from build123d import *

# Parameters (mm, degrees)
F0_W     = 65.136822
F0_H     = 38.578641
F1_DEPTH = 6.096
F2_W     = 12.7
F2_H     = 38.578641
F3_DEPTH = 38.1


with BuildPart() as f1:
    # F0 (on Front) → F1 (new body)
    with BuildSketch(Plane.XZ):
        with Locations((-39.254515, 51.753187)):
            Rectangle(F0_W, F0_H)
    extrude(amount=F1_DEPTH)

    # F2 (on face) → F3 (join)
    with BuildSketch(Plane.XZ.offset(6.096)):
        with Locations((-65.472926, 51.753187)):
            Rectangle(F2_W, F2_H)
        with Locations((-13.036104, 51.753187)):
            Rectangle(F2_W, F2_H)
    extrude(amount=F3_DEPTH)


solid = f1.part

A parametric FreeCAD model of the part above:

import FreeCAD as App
import Part
import Sketcher
Q = App.Units.Quantity


def add_polygon(sketch, points):
    """Adds a closed chain of lines whose ends are joined by coincident constraints."""
    first, n = sketch.GeometryCount, len(points)
    for a, b in zip(points, points[1:] + points[:1]):
        sketch.addGeometry(Part.LineSegment(App.Vector(*a, 0), App.Vector(*b, 0)), False)
    for i in range(n):
        sketch.addConstraint(Sketcher.Constraint("Coincident", first + i, 2, first + (i + 1) % n, 1))

doc = App.newDocument("Part")
body = doc.addObject("PartDesign::Body", "Body")

sketch1 = body.newObject("Sketcher::SketchObject", "Sketch")
sketch1.AttachmentSupport = (doc.getObject("XZ_Plane"), [""])
sketch1.MapMode = "FlatFace"
add_polygon(sketch1, [(-72, 71), (-72, 32), (-7, 32), (-7, 71)])
sketch1.addConstraint([
    Sketcher.Constraint("Vertical", 0),
    Sketcher.Constraint("Horizontal", 1),
    Sketcher.Constraint("Vertical", 2),
    Sketcher.Constraint("Horizontal", 3),
    Sketcher.Constraint("DistanceX", 1, 1, 1, 2, Q("65.136822 mm")),
    Sketcher.Constraint("DistanceY", 0, 2, 0, 1, Q("38.578641 mm")),
    Sketcher.Constraint("DistanceX", 0, 2, -1, 1, Q("71.822926 mm")),
    Sketcher.Constraint("DistanceY", -1, 1, 0, 2, Q("32.463867 mm")),
])
pad1 = body.newObject("PartDesign::Pad", "Pad")
pad1.Profile = sketch1
pad1.Length = Q("0.24 in")

sketch2 = body.newObject("Sketcher::SketchObject", "Sketch001")
sketch2.AttachmentSupport = (doc.getObject("XZ_Plane"), [""])
sketch2.MapMode = "FlatFace"
sketch2.AttachmentOffset = App.Placement(App.Vector(0, 0, 0.24 * 25.4), App.Rotation())
add_polygon(sketch2, [(-72, 71), (-72, 32), (-59, 32), (-59, 71)])
add_polygon(sketch2, [(-19, 71), (-19, 32), (-7, 32), (-7, 71)])
sketch2.addConstraint([
    Sketcher.Constraint("Vertical", 0),
    Sketcher.Constraint("Horizontal", 1),
    Sketcher.Constraint("Vertical", 2),
    Sketcher.Constraint("Horizontal", 3),
    Sketcher.Constraint("Vertical", 4),
    Sketcher.Constraint("Horizontal", 5),
    Sketcher.Constraint("Vertical", 6),
    Sketcher.Constraint("Horizontal", 7),
    Sketcher.Constraint("Horizontal", 1, 2, 4, 2),
    Sketcher.Constraint("Horizontal", 3, 2, 6, 2),
    Sketcher.Constraint("Equal", 3, 5),
    Sketcher.Constraint("DistanceX", 1, 1, 1, 2, Q("0.5 in")),
    Sketcher.Constraint("DistanceY", 0, 2, 0, 1, Q("38.578641 mm")),
    Sketcher.Constraint("DistanceX", 0, 2, 4, 2, Q("52.436822 mm")),
    Sketcher.Constraint("DistanceX", 0, 2, -1, 1, Q("71.822926 mm")),
    Sketcher.Constraint("DistanceY", -1, 1, 0, 2, Q("32.463867 mm")),
])
pad2 = body.newObject("PartDesign::Pad", "Pad001")
pad2.Profile = sketch2
pad2.Length = Q("1.5 in")

doc.recompute()
